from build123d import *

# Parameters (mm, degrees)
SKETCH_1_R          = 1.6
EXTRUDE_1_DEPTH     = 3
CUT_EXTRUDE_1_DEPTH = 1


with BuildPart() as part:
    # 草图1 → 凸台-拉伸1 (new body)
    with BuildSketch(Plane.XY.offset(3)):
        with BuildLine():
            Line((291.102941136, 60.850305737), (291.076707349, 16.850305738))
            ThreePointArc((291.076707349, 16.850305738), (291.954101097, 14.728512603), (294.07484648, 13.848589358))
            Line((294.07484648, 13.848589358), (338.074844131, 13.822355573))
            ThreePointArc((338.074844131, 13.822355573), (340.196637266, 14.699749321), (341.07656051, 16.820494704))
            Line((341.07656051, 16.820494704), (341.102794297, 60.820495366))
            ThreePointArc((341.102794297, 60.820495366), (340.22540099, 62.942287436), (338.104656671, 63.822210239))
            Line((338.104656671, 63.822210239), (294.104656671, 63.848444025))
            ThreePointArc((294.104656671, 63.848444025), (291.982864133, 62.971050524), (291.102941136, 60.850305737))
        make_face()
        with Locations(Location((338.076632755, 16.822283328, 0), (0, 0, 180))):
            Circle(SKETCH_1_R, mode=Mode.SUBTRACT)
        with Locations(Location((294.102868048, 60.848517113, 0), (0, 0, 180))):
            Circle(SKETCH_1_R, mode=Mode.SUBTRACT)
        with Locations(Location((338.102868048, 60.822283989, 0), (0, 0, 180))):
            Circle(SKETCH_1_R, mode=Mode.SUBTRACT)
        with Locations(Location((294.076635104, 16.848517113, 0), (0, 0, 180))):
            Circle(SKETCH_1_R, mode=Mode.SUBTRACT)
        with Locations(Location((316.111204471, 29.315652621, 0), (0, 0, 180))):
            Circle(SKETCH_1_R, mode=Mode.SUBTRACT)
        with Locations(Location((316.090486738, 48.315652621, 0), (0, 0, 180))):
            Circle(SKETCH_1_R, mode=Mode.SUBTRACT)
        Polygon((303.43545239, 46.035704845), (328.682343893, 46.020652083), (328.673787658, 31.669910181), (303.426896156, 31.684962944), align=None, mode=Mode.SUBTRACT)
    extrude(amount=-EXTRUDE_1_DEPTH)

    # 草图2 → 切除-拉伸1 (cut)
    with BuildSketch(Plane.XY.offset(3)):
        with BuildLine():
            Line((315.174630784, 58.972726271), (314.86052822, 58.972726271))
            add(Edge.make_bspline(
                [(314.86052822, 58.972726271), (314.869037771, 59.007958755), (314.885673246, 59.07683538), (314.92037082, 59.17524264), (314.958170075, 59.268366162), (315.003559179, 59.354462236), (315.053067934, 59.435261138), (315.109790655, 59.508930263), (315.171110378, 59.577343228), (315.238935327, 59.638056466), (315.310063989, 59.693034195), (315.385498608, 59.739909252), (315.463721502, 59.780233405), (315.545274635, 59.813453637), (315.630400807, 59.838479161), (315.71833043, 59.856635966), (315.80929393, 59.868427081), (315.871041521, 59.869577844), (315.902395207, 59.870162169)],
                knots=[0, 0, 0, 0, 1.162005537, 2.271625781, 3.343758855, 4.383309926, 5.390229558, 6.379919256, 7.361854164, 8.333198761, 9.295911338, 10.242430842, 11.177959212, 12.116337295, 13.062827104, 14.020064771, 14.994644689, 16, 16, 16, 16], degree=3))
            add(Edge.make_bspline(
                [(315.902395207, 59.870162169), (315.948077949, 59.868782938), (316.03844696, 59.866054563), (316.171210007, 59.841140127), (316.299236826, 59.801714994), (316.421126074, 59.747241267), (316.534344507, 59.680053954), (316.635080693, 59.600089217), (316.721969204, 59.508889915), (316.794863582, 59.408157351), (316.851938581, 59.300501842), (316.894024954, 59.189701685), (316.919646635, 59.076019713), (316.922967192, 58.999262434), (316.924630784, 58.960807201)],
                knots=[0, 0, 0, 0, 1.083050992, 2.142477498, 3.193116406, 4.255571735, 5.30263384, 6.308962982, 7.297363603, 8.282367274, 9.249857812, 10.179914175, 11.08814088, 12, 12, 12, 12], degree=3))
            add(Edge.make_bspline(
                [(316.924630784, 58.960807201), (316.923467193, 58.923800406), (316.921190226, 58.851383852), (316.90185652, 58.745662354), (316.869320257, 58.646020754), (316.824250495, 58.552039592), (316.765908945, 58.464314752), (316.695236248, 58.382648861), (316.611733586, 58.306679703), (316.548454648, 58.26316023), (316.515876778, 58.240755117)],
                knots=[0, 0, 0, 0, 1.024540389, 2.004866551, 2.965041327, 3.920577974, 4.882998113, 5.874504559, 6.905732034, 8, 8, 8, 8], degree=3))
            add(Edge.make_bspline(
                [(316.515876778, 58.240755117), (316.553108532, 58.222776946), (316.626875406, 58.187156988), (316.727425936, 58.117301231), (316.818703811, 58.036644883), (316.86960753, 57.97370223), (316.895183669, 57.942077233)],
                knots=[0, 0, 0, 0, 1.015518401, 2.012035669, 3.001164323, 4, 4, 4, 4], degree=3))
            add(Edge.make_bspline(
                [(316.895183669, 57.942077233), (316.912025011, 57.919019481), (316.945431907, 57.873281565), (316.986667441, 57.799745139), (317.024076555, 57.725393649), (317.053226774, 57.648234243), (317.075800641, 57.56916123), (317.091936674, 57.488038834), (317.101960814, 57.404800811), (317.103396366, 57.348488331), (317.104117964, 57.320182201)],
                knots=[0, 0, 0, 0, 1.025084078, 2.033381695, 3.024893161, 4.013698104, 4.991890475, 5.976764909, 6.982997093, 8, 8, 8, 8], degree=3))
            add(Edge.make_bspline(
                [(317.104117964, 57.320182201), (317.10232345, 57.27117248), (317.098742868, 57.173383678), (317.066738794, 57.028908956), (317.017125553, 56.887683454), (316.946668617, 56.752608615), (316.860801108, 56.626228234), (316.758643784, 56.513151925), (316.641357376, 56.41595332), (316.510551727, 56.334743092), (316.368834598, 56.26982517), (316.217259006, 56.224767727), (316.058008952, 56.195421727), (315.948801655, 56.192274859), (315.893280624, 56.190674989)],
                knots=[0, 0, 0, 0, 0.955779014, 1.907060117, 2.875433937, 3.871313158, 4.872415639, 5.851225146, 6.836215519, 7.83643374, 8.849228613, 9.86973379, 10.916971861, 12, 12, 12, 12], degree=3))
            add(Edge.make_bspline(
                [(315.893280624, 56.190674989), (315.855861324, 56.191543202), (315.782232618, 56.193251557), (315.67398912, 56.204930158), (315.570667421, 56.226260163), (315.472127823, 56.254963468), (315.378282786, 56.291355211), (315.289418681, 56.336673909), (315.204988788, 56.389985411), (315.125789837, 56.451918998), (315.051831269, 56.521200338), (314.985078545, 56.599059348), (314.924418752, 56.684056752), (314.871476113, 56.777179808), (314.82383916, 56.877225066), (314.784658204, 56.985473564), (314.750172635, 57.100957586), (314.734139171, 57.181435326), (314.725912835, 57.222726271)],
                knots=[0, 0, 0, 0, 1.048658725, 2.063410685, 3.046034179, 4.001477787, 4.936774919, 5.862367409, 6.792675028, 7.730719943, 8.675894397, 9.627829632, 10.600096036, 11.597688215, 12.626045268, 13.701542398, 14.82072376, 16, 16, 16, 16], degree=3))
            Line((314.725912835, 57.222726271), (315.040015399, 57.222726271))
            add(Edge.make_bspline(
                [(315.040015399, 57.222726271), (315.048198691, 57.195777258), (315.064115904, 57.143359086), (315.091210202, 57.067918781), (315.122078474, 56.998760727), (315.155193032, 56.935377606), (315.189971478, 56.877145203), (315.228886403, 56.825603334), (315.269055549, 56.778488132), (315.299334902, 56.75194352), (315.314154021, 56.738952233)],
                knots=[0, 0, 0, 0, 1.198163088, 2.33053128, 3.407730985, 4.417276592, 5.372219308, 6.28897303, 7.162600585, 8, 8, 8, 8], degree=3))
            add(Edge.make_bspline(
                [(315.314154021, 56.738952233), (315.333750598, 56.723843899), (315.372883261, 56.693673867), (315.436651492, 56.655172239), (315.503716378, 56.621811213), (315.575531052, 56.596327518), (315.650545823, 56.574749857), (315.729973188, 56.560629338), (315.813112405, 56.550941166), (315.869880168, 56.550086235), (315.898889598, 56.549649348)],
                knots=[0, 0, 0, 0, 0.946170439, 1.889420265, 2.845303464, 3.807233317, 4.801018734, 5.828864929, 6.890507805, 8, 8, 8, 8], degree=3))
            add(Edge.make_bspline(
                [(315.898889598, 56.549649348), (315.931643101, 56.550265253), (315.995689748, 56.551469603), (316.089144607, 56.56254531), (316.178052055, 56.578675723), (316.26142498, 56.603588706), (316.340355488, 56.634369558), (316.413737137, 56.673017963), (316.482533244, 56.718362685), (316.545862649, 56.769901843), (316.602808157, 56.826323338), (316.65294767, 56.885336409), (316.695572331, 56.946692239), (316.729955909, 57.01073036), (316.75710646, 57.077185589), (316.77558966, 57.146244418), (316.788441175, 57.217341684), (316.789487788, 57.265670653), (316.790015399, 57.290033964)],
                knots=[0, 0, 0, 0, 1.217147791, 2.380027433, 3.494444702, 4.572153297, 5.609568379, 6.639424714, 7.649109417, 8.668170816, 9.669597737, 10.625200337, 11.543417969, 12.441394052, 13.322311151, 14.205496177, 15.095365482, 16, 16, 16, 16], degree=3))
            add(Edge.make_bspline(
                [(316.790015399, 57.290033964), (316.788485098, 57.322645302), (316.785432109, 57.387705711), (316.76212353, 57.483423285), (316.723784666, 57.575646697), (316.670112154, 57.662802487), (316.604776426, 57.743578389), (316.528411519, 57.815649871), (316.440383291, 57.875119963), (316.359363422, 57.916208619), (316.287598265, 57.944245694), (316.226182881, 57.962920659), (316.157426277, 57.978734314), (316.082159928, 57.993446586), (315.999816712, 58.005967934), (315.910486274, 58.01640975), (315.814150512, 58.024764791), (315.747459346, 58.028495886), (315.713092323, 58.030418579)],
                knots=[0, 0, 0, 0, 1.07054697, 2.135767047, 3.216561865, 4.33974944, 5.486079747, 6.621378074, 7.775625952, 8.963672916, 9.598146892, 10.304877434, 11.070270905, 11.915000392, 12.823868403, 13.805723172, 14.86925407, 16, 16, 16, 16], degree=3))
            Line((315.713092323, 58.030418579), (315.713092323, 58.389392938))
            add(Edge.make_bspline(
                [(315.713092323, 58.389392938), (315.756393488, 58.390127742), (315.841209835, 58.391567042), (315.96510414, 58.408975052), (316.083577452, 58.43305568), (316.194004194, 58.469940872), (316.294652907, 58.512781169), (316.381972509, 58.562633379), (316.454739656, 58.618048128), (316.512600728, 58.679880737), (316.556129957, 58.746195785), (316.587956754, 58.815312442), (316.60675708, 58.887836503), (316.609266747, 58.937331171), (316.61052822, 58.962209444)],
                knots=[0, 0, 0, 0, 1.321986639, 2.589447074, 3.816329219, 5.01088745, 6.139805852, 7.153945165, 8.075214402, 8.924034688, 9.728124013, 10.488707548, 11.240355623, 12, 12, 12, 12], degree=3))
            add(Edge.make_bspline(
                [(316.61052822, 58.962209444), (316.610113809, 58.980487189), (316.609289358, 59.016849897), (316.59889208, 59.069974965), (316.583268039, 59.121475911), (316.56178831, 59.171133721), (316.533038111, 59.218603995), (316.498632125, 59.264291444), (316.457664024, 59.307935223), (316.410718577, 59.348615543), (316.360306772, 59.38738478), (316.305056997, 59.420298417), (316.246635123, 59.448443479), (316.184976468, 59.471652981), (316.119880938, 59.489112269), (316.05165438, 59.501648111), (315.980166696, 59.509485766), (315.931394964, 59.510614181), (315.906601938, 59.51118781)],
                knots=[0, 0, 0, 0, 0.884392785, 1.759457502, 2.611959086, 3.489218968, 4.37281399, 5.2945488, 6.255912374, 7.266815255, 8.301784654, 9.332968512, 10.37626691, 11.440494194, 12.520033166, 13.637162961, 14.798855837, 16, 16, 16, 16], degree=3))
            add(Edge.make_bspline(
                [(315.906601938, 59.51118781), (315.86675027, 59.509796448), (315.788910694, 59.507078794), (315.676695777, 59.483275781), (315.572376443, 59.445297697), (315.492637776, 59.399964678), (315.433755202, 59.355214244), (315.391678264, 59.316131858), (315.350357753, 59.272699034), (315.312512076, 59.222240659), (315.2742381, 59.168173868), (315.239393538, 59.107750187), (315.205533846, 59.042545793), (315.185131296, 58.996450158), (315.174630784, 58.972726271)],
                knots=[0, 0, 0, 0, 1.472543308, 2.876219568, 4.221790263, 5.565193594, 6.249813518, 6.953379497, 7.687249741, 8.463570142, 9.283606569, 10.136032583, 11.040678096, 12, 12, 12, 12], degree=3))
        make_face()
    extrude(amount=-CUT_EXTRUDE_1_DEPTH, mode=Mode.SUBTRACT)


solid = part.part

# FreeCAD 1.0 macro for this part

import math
import FreeCAD as App
import Part
import Sketcher

V = App.Vector
Q = App.Units.Quantity

doc = App.newDocument("Part")
body = doc.addObject("PartDesign::Body", "Body")

sketch1 = body.newObject("Sketcher::SketchObject", "Sketch")
sketch1.AttachmentSupport = (doc.getObject("XY_Plane"), [""])
sketch1.MapMode = "FlatFace"
sketch1.AttachmentOffset = App.Placement(V(0, 0, 3), App.Rotation())
sketch1.addGeometry([
    Part.LineSegment(V(291.1, 60.9, 0), V(291.1, 16.9, 0)),
    Part.ArcOfCircle(Part.Circle(V(294.1, 16.8, 0), V(0, 0, 1), 3), math.radians(180), math.radians(270)),
    Part.LineSegment(V(294.1, 13.8, 0), V(338.1, 13.8, 0)),
    Part.ArcOfCircle(Part.Circle(V(338.1, 16.8, 0), V(0, 0, 1), 3), math.radians(-90), math.radians(0)),
    Part.LineSegment(V(341.1, 16.8, 0), V(341.1, 60.8, 0)),
    Part.ArcOfCircle(Part.Circle(V(338.1, 60.8, 0), V(0, 0, 1), 3), math.radians(0), math.radians(90)),
    Part.LineSegment(V(338.1, 63.8, 0), V(294.1, 63.8, 0)),
    Part.ArcOfCircle(Part.Circle(V(294.1, 60.8, 0), V(0, 0, 1), 3), math.radians(90), math.radians(180)),
    Part.Circle(V(294.1, 16.8, 0), V(0, 0, 1), 1.6),
    Part.Circle(V(338.1, 16.8, 0), V(0, 0, 1), 1.6),
    Part.Circle(V(316.1, 29.3, 0), V(0, 0, 1), 1.6),
    Part.LineSegment(V(303.4, 31.7, 0), V(303.4, 46, 0)),
    Part.LineSegment(V(303.4, 46, 0), V(328.7, 46, 0)),
    Part.LineSegment(V(328.7, 46, 0), V(328.7, 31.7, 0)),
    Part.LineSegment(V(328.7, 31.7, 0), V(303.4, 31.7, 0)),
    Part.Circle(V(294.1, 60.8, 0), V(0, 0, 1), 1.6),
    Part.Circle(V(316.1, 48.3, 0), V(0, 0, 1), 1.6),
    Part.Circle(V(338.1, 60.8, 0), V(0, 0, 1), 1.6),
], False)
sketch1.addConstraint([
    Sketcher.Constraint("Tangent", 0, 2, 1, 1),
    Sketcher.Constraint("Tangent", 1, 2, 2, 1),
    Sketcher.Constraint("Tangent", 2, 2, 3, 1),
    Sketcher.Constraint("Tangent", 3, 2, 4, 1),
    Sketcher.Constraint("Tangent", 4, 2, 5, 1),
    Sketcher.Constraint("Tangent", 5, 2, 6, 1),
    Sketcher.Constraint("Tangent", 6, 2, 7, 1),
    Sketcher.Constraint("Tangent", 7, 2, 0, 1),
    Sketcher.Constraint("Coincident", 11, 2, 12, 1),
    Sketcher.Constraint("Coincident", 12, 2, 13, 1),
    Sketcher.Constraint("Coincident", 13, 2, 14, 1),
    Sketcher.Constraint("Coincident", 14, 2, 11, 1),
    Sketcher.Constraint("Coincident", 8, 3, 1, 3),
    Sketcher.Constraint("Coincident", 9, 3, 3, 3),
    Sketcher.Constraint("Coincident", 15, 3, 7, 3),
    Sketcher.Constraint("Coincident", 17, 3, 5, 3),
    Sketcher.Constraint("Equal", 1, 3),
    Sketcher.Constraint("Equal", 3, 5),
    Sketcher.Constraint("Equal", 5, 7),
    Sketcher.Constraint("Equal", 8, 9),
    Sketcher.Constraint("Equal", 9, 10),
    Sketcher.Constraint("Equal", 10, 15),
    Sketcher.Constraint("Equal", 15, 16),
    Sketcher.Constraint("Equal", 16, 17),
    Sketcher.Constraint("Perpendicular", 0, 2),
    Sketcher.Constraint("Perpendicular", 2, 4),
    Sketcher.Constraint("Perpendicular", 4, 6),
    Sketcher.Constraint("Perpendicular", 6, 11),
    Sketcher.Constraint("Perpendicular", 11, 12),
    Sketcher.Constraint("Perpendicular", 12, 13),
    Sketcher.Constraint("Perpendicular", 13, 14),
    Sketcher.Constraint("Equal", 4, 6),
    Sketcher.Constraint("Diameter", 8, Q("3.2 mm")),
    Sketcher.Constraint("DistanceY", 3, 3, 5, 3, Q("44.000001 mm")),
    Sketcher.Constraint("DistanceY", 10, 3, 16, 3, Q("19 mm")),
    Sketcher.Constraint("Radius", 1, Q("2.999928 mm")),
    Sketcher.Constraint("DistanceY", 12, 2, 16, 3, Q("2.295001 mm")),
    Sketcher.Constraint("DistanceY", 11, 2, 7, 2, Q("14.814601 mm")),
    Sketcher.Constraint("DistanceX", -1, 1, 5, 3, Q("338.102868 mm")),
    Sketcher.Constraint("DistanceY", -1, 1, 1, 2, Q("13.848589 mm")),
    Sketcher.Constraint("DistanceX", -1, 1, 3, 2, Q("341.076561 mm")),
    Sketcher.Constraint("DistanceY", -1, 1, 13, 2, Q("31.66991 mm")),
    Sketcher.Constraint("DistanceX", 10, 3, 9, 3, Q("21.965428 mm")),
    Sketcher.Constraint("DistanceX", 15, 3, 16, 3, Q("21.987619 mm")),
    Sketcher.Constraint("DistanceX", 7, 2, 11, 2, Q("12.332511 mm")),
    Sketcher.Constraint("DistanceX", 12, 2, 4, 2, Q("12.42045 mm")),
])
pad1 = body.newObject("PartDesign::Pad", "Pad")
pad1.Profile = sketch1
pad1.Length = 3
pad1.Reversed = True

sketch2 = body.newObject("Sketcher::SketchObject", "Sketch001")
sketch2.AttachmentSupport = (doc.getObject("XY_Plane"), [""])
sketch2.MapMode = "FlatFace"
sketch2.AttachmentOffset = App.Placement(V(0, 0, 3), App.Rotation())
sketch2.addGeometry([
    Part.LineSegment(V(314.860528, 58.972726, 0), V(315.174631, 58.972726, 0)),
    Part.BSplineCurve([V(315.906602, 59.511188, 0), V(315.86675, 59.509796, 0), V(315.788911, 59.507079, 0), V(315.676696, 59.483276, 0), V(315.572376, 59.445298, 0), V(315.492638, 59.399965, 0), V(315.433755, 59.355214, 0), V(315.391678, 59.316132, 0), V(315.350358, 59.272699, 0), V(315.312512, 59.222241, 0), V(315.274238, 59.168174, 0), V(315.239394, 59.10775, 0), V(315.205534, 59.042546, 0), V(315.185131, 58.99645, 0), V(315.174631, 58.972726, 0)], [4, 1, 1, 1, 1, 1, 1, 1, 1, 1, 1, 1, 4], [0, 1.472543308, 2.876219568, 4.221790263, 5.565193594, 6.249813518, 6.953379497, 7.687249741, 8.463570142, 9.283606569, 10.136032583, 11.040678096, 12], False, 3, [1, 1, 1, 1, 1, 1, 1, 1, 1, 1, 1, 1, 1, 1, 1], False),
    Part.BSplineCurve([V(316.610528, 58.962209, 0), V(316.610114, 58.980487, 0), V(316.609289, 59.01685, 0), V(316.598892, 59.069975, 0), V(316.583268, 59.121476, 0), V(316.561788, 59.171134, 0), V(316.533038, 59.218604, 0), V(316.498632, 59.264291, 0), V(316.457664, 59.307935, 0), V(316.410719, 59.348616, 0), V(316.360307, 59.387385, 0), V(316.305057, 59.420298, 0), V(316.246635, 59.448443, 0), V(316.184976, 59.471653, 0), V(316.119881, 59.489112, 0), V(316.051654, 59.501648, 0), V(315.980167, 59.509486, 0), V(315.931395, 59.510614, 0), V(315.906602, 59.511188, 0)], [4, 1, 1, 1, 1, 1, 1, 1, 1, 1, 1, 1, 1, 1, 1, 1, 4], [0, 0.884392785, 1.759457502, 2.611959086, 3.489218968, 4.37281399, 5.2945488, 6.255912374, 7.266815255, 8.301784654, 9.332968512, 10.37626691, 11.440494194, 12.520033166, 13.637162961, 14.798855837, 16], False, 3, [1, 1, 1, 1, 1, 1, 1, 1, 1, 1, 1, 1, 1, 1, 1, 1, 1, 1, 1], False),
    Part.BSplineCurve([V(315.713092, 58.389393, 0), V(315.756393, 58.390128, 0), V(315.84121, 58.391567, 0), V(315.965104, 58.408975, 0), V(316.083577, 58.433056, 0), V(316.194004, 58.469941, 0), V(316.294653, 58.512781, 0), V(316.381973, 58.562633, 0), V(316.45474, 58.618048, 0), V(316.512601, 58.679881, 0), V(316.55613, 58.746196, 0), V(316.587957, 58.815312, 0), V(316.606757, 58.887837, 0), V(316.609267, 58.937331, 0), V(316.610528, 58.962209, 0)], [4, 1, 1, 1, 1, 1, 1, 1, 1, 1, 1, 1, 4], [0, 1.321986639, 2.589447074, 3.816329219, 5.01088745, 6.139805852, 7.153945165, 8.075214402, 8.924034688, 9.728124013, 10.488707548, 11.240355623, 12], False, 3, [1, 1, 1, 1, 1, 1, 1, 1, 1, 1, 1, 1, 1, 1, 1], False),
    Part.LineSegment(V(315.713092, 58.389393, 0), V(315.713092, 58.030419, 0)),
    Part.BSplineCurve([V(316.790015, 57.290034, 0), V(316.788485, 57.322645, 0), V(316.785432, 57.387706, 0), V(316.762124, 57.483423, 0), V(316.723785, 57.575647, 0), V(316.670112, 57.662802, 0), V(316.604776, 57.743578, 0), V(316.528412, 57.81565, 0), V(316.440383, 57.87512, 0), V(316.359363, 57.916209, 0), V(316.287598, 57.944246, 0), V(316.226183, 57.962921, 0), V(316.157426, 57.978734, 0), V(316.08216, 57.993447, 0), V(315.999817, 58.005968, 0), V(315.910486, 58.01641, 0), V(315.814151, 58.024765, 0), V(315.747459, 58.028496, 0), V(315.713092, 58.030419, 0)], [4, 1, 1, 1, 1, 1, 1, 1, 1, 1, 1, 1, 1, 1, 1, 1, 4], [0, 1.07054697, 2.135767047, 3.216561865, 4.33974944, 5.486079747, 6.621378074, 7.775625952, 8.963672916, 9.598146892, 10.304877434, 11.070270905, 11.915000392, 12.823868403, 13.805723172, 14.86925407, 16], False, 3, [1, 1, 1, 1, 1, 1, 1, 1, 1, 1, 1, 1, 1, 1, 1, 1, 1, 1, 1], False),
    Part.BSplineCurve([V(315.89889, 56.549649, 0), V(315.931643, 56.550265, 0), V(315.99569, 56.55147, 0), V(316.089145, 56.562545, 0), V(316.178052, 56.578676, 0), V(316.261425, 56.603589, 0), V(316.340355, 56.63437, 0), V(316.413737, 56.673018, 0), V(316.482533, 56.718363, 0), V(316.545863, 56.769902, 0), V(316.602808, 56.826323, 0), V(316.652948, 56.885336, 0), V(316.695572, 56.946692, 0), V(316.729956, 57.01073, 0), V(316.757106, 57.077186, 0), V(316.77559, 57.146244, 0), V(316.788441, 57.217342, 0), V(316.789488, 57.265671, 0), V(316.790015, 57.290034, 0)], [4, 1, 1, 1, 1, 1, 1, 1, 1, 1, 1, 1, 1, 1, 1, 1, 4], [0, 1.217147791, 2.380027433, 3.494444702, 4.572153297, 5.609568379, 6.639424714, 7.649109417, 8.668170816, 9.669597737, 10.625200337, 11.543417969, 12.441394052, 13.322311151, 14.205496177, 15.095365482, 16], False, 3, [1, 1, 1, 1, 1, 1, 1, 1, 1, 1, 1, 1, 1, 1, 1, 1, 1, 1, 1], False),
    Part.BSplineCurve([V(315.314154, 56.738952, 0), V(315.333751, 56.723844, 0), V(315.372883, 56.693674, 0), V(315.436651, 56.655172, 0), V(315.503716, 56.621811, 0), V(315.575531, 56.596328, 0), V(315.650546, 56.57475, 0), V(315.729973, 56.560629, 0), V(315.813112, 56.550941, 0), V(315.86988, 56.550086, 0), V(315.89889, 56.549649, 0)], [4, 1, 1, 1, 1, 1, 1, 1, 4], [0, 0.946170439, 1.889420265, 2.845303464, 3.807233317, 4.801018734, 5.828864929, 6.890507805, 8], False, 3, [1, 1, 1, 1, 1, 1, 1, 1, 1, 1, 1], False),
    Part.BSplineCurve([V(315.040015, 57.222726, 0), V(315.048199, 57.195777, 0), V(315.064116, 57.143359, 0), V(315.09121, 57.067919, 0), V(315.122078, 56.998761, 0), V(315.155193, 56.935378, 0), V(315.189971, 56.877145, 0), V(315.228886, 56.825603, 0), V(315.269056, 56.778488, 0), V(315.299335, 56.751944, 0), V(315.314154, 56.738952, 0)], [4, 1, 1, 1, 1, 1, 1, 1, 4], [0, 1.198163088, 2.33053128, 3.407730985, 4.417276592, 5.372219308, 6.28897303, 7.162600585, 8], False, 3, [1, 1, 1, 1, 1, 1, 1, 1, 1, 1, 1], False),
    Part.LineSegment(V(315.040015, 57.222726, 0), V(314.725913, 57.222726, 0)),
    Part.BSplineCurve([V(315.893281, 56.190675, 0), V(315.855861, 56.191543, 0), V(315.782233, 56.193252, 0), V(315.673989, 56.20493, 0), V(315.570667, 56.22626, 0), V(315.472128, 56.254963, 0), V(315.378283, 56.291355, 0), V(315.289419, 56.336674, 0), V(315.204989, 56.389985, 0), V(315.12579, 56.451919, 0), V(315.051831, 56.5212, 0), V(314.985079, 56.599059, 0), V(314.924419, 56.684057, 0), V(314.871476, 56.77718, 0), V(314.823839, 56.877225, 0), V(314.784658, 56.985474, 0), V(314.750173, 57.100958, 0), V(314.734139, 57.181435, 0), V(314.725913, 57.222726, 0)], [4, 1, 1, 1, 1, 1, 1, 1, 1, 1, 1, 1, 1, 1, 1, 1, 4], [0, 1.048658725, 2.063410685, 3.046034179, 4.001477787, 4.936774919, 5.862367409, 6.792675028, 7.730719943, 8.675894397, 9.627829632, 10.600096036, 11.597688215, 12.626045268, 13.701542398, 14.82072376, 16], False, 3, [1, 1, 1, 1, 1, 1, 1, 1, 1, 1, 1, 1, 1, 1, 1, 1, 1, 1, 1], False),
    Part.BSplineCurve([V(317.104118, 57.320182, 0), V(317.102323, 57.271172, 0), V(317.098743, 57.173384, 0), V(317.066739, 57.028909, 0), V(317.017126, 56.887683, 0), V(316.946669, 56.752609, 0), V(316.860801, 56.626228, 0), V(316.758644, 56.513152, 0), V(316.641357, 56.415953, 0), V(316.510552, 56.334743, 0), V(316.368835, 56.269825, 0), V(316.217259, 56.224768, 0), V(316.058009, 56.195422, 0), V(315.948802, 56.192275, 0), V(315.893281, 56.190675, 0)], [4, 1, 1, 1, 1, 1, 1, 1, 1, 1, 1, 1, 4], [0, 0.955779014, 1.907060117, 2.875433937, 3.871313158, 4.872415639, 5.851225146, 6.836215519, 7.83643374, 8.849228613, 9.86973379, 10.916971861, 12], False, 3, [1, 1, 1, 1, 1, 1, 1, 1, 1, 1, 1, 1, 1, 1, 1], False),
    Part.BSplineCurve([V(316.895184, 57.942077, 0), V(316.912025, 57.919019, 0), V(316.945432, 57.873282, 0), V(316.986667, 57.799745, 0), V(317.024077, 57.725394, 0), V(317.053227, 57.648234, 0), V(317.075801, 57.569161, 0), V(317.091937, 57.488039, 0), V(317.101961, 57.404801, 0), V(317.103396, 57.348488, 0), V(317.104118, 57.320182, 0)], [4, 1, 1, 1, 1, 1, 1, 1, 4], [0, 1.025084078, 2.033381695, 3.024893161, 4.013698104, 4.991890475, 5.976764909, 6.982997093, 8], False, 3, [1, 1, 1, 1, 1, 1, 1, 1, 1, 1, 1], False),
    Part.BSplineCurve([V(316.515877, 58.240755, 0), V(316.553109, 58.222777, 0), V(316.626875, 58.187157, 0), V(316.727426, 58.117301, 0), V(316.818704, 58.036645, 0), V(316.869608, 57.973702, 0), V(316.895184, 57.942077, 0)], [4, 1, 1, 1, 4], [0, 1.015518401, 2.012035669, 3.001164323, 4], False, 3, [1, 1, 1, 1, 1, 1, 1], False),
    Part.BSplineCurve([V(316.924631, 58.960807, 0), V(316.923467, 58.9238, 0), V(316.92119, 58.851384, 0), V(316.901857, 58.745662, 0), V(316.86932, 58.646021, 0), V(316.82425, 58.55204, 0), V(316.765909, 58.464315, 0), V(316.695236, 58.382649, 0), V(316.611734, 58.30668, 0), V(316.548455, 58.26316, 0), V(316.515877, 58.240755, 0)], [4, 1, 1, 1, 1, 1, 1, 1, 4], [0, 1.024540389, 2.004866551, 2.965041327, 3.920577974, 4.882998113, 5.874504559, 6.905732034, 8], False, 3, [1, 1, 1, 1, 1, 1, 1, 1, 1, 1, 1], False),
    Part.BSplineCurve([V(315.902395, 59.870162, 0), V(315.948078, 59.868783, 0), V(316.038447, 59.866055, 0), V(316.17121, 59.84114, 0), V(316.299237, 59.801715, 0), V(316.421126, 59.747241, 0), V(316.534345, 59.680054, 0), V(316.635081, 59.600089, 0), V(316.721969, 59.50889, 0), V(316.794864, 59.408157, 0), V(316.851939, 59.300502, 0), V(316.894025, 59.189702, 0), V(316.919647, 59.07602, 0), V(316.922967, 58.999262, 0), V(316.924631, 58.960807, 0)], [4, 1, 1, 1, 1, 1, 1, 1, 1, 1, 1, 1, 4], [0, 1.083050992, 2.142477498, 3.193116406, 4.255571735, 5.30263384, 6.308962982, 7.297363603, 8.282367274, 9.249857812, 10.179914175, 11.08814088, 12], False, 3, [1, 1, 1, 1, 1, 1, 1, 1, 1, 1, 1, 1, 1, 1, 1], False),
    Part.BSplineCurve([V(314.860528, 58.972726, 0), V(314.869038, 59.007959, 0), V(314.885673, 59.076835, 0), V(314.920371, 59.175243, 0), V(314.95817, 59.268366, 0), V(315.003559, 59.354462, 0), V(315.053068, 59.435261, 0), V(315.109791, 59.50893, 0), V(315.17111, 59.577343, 0), V(315.238935, 59.638056, 0), V(315.310064, 59.693034, 0), V(315.385499, 59.739909, 0), V(315.463722, 59.780233, 0), V(315.545275, 59.813454, 0), V(315.630401, 59.838479, 0), V(315.71833, 59.856636, 0), V(315.809294, 59.868427, 0), V(315.871042, 59.869578, 0), V(315.902395, 59.870162, 0)], [4, 1, 1, 1, 1, 1, 1, 1, 1, 1, 1, 1, 1, 1, 1, 1, 4], [0, 1.162005537, 2.271625781, 3.343758855, 4.383309926, 5.390229558, 6.379919256, 7.361854164, 8.333198761, 9.295911338, 10.242430842, 11.177959212, 12.116337295, 13.062827104, 14.020064771, 14.994644689, 16], False, 3, [1, 1, 1, 1, 1, 1, 1, 1, 1, 1, 1, 1, 1, 1, 1, 1, 1, 1, 1], False),
], False)
sketch2.addConstraint([
    Sketcher.Constraint("Block", 1),
    Sketcher.Constraint("Block", 2),
    Sketcher.Constraint("Block", 3),
    Sketcher.Constraint("Block", 5),
    Sketcher.Constraint("Block", 6),
    Sketcher.Constraint("Block", 7),
    Sketcher.Constraint("Block", 8),
    Sketcher.Constraint("Block", 10),
    Sketcher.Constraint("Block", 11),
    Sketcher.Constraint("Block", 12),
    Sketcher.Constraint("Block", 13),
    Sketcher.Constraint("Block", 14),
    Sketcher.Constraint("Block", 15),
    Sketcher.Constraint("Block", 16),
    Sketcher.Constraint("Coincident", 0, 2, 1, 2),
    Sketcher.Constraint("Coincident", 3, 1, 4, 1),
    Sketcher.Constraint("Coincident", 4, 2, 5, 2),
    Sketcher.Constraint("Coincident", 8, 1, 9, 1),
    Sketcher.Constraint("Coincident", 9, 2, 10, 2),
    Sketcher.Constraint("Coincident", 16, 1, 0, 1),
])
pocket1 = body.newObject("PartDesign::Pocket", "Pocket")
pocket1.Profile = sketch2
pocket1.Length = 1

doc.recompute()
